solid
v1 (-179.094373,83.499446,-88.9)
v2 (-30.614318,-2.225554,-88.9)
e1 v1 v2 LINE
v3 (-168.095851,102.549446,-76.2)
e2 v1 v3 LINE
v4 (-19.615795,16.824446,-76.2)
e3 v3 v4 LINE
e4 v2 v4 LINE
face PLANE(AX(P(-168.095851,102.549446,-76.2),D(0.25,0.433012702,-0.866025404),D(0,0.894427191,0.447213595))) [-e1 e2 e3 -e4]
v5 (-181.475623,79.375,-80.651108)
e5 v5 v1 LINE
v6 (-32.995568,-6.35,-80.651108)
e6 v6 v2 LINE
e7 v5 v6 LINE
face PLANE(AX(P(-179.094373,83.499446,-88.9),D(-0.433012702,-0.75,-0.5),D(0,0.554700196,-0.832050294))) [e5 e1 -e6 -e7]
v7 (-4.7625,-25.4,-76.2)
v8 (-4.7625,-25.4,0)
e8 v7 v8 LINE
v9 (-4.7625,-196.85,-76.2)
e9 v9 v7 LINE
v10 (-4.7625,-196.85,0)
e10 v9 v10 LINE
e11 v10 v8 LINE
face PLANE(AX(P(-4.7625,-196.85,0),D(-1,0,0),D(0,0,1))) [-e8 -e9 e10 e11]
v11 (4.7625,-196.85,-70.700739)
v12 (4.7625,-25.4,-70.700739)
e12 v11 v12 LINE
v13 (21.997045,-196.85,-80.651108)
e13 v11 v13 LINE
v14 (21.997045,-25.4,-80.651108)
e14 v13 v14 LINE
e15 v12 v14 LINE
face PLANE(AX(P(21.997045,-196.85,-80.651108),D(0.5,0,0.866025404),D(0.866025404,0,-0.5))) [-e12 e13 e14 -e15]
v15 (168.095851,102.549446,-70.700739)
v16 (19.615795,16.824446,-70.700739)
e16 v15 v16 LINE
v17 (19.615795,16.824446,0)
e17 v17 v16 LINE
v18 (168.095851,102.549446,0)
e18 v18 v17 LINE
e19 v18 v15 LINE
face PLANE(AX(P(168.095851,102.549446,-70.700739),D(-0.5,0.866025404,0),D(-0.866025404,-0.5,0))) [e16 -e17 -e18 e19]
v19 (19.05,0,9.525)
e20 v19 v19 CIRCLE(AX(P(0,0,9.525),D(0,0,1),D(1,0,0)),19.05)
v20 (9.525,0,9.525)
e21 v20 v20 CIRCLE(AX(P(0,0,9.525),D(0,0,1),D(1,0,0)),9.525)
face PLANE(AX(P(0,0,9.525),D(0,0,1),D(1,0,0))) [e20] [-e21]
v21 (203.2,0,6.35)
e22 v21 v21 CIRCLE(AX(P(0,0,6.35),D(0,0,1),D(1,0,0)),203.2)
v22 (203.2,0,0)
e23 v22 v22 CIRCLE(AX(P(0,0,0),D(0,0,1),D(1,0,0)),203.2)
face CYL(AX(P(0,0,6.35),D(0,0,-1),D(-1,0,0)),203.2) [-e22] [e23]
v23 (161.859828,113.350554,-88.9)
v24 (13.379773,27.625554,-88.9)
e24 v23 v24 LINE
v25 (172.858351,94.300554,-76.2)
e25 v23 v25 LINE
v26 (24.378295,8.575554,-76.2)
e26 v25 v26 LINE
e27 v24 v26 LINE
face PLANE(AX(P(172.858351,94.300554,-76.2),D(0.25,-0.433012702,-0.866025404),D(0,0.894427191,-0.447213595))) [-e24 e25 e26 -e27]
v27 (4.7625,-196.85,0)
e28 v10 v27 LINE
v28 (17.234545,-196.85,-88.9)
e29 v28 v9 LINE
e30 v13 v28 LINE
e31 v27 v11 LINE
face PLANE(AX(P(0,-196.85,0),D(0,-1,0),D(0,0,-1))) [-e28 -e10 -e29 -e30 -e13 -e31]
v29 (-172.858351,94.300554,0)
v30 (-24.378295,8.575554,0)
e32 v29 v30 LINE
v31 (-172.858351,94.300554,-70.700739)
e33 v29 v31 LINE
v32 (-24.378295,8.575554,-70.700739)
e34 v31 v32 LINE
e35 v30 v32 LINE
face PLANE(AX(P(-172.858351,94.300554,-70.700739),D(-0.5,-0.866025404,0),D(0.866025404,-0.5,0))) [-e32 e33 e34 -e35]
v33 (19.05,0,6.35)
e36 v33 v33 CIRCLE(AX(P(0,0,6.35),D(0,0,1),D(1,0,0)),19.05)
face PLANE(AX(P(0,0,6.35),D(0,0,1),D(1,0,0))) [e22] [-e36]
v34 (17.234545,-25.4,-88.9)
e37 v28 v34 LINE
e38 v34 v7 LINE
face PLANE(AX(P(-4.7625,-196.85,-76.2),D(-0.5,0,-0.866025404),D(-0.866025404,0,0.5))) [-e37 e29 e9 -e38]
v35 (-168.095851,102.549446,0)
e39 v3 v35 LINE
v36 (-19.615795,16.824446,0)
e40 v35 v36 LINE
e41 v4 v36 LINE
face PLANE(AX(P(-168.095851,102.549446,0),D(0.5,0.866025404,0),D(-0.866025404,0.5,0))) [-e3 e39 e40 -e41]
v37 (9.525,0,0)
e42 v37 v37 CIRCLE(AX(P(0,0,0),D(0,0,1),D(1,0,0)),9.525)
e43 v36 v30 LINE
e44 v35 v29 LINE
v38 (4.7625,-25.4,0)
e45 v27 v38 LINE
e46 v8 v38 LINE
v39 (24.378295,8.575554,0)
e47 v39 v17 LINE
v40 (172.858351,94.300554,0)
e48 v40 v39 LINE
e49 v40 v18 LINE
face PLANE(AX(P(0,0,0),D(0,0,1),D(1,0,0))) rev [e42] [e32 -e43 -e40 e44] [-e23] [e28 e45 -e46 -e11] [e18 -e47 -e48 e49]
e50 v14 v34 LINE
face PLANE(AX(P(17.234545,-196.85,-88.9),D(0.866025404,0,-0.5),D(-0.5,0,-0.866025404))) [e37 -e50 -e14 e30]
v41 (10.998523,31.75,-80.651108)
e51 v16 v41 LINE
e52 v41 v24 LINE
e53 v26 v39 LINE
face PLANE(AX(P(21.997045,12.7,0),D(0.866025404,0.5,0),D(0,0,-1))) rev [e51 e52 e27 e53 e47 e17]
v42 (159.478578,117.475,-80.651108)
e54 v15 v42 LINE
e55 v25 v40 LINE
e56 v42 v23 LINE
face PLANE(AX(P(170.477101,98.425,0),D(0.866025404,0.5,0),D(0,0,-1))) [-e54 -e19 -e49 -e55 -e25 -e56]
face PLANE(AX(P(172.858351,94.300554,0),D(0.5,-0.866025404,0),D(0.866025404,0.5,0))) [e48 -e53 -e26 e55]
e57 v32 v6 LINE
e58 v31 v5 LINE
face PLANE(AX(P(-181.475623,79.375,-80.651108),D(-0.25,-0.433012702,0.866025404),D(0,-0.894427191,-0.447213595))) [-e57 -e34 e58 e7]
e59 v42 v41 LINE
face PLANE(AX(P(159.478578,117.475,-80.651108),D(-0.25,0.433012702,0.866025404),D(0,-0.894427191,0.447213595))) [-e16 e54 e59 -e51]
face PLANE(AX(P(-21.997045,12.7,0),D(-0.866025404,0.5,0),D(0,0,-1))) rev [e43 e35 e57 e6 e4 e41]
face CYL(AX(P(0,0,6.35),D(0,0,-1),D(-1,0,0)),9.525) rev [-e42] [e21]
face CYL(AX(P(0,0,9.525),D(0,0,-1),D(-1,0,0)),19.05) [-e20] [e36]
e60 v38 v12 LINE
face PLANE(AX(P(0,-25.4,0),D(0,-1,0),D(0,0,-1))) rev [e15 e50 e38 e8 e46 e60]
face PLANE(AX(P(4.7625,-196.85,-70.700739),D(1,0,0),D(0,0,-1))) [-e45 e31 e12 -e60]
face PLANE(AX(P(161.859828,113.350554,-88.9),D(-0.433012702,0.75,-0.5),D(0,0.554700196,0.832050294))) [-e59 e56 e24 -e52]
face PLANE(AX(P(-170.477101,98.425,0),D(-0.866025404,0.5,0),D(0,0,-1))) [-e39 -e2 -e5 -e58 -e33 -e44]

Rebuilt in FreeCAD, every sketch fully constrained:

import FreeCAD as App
import Part
import Sketcher
from FreeCAD import Vector
Q = App.Units.Quantity


def add_polygon(sketch, points):
    """Adds a closed chain of lines whose ends are joined by coincident constraints."""
    first, n = sketch.GeometryCount, len(points)
    for a, b in zip(points, points[1:] + points[:1]):
        sketch.addGeometry(Part.LineSegment(App.Vector(*a, 0), App.Vector(*b, 0)), False)
    for i in range(n):
        sketch.addConstraint(Sketcher.Constraint("Coincident", first + i, 2, first + (i + 1) % n, 1))

doc = App.newDocument("Part")
params = doc.addObject("Spreadsheet::Sheet", "Params")
for row, (alias, value) in enumerate([
    ("sketch1_diameter", "16 in"),
    ("sketch1_diameter2", "0.75 in"),
    ("pad1_length", "0.25 in"),
    ("sketch2_height", "3 in"),
    ("sketch2_length", "1 in"),
    ("sketch2_width", "0.375 in"),
    ("sketch2_length2", "0.375 in"),
    ("pad2_length", "6.75 in"),
    ("sketch3_diameter", "1.5 in"),
    ("sketch3_diameter2", "0.75 in"),
    ("pad3_length", "0.125 in"),
], start=1):
    params.set(f"A{row}", alias)
    params.set(f"B{row}", "=" + value)
    params.setAlias(f"B{row}", alias)

body = doc.addObject("PartDesign::Body", "Body")

sketch1 = doc.addObject("Sketcher::SketchObject", "Sketch")
body.addObject(sketch1)
sketch1.AttachmentSupport = (doc.XY_Plane, [""])
sketch1.MapMode = "FlatFace"
sketch1.addGeometry([
    Part.Circle(Vector(0, 0, 0), Vector(0, 0, 1), 203.2),
    Part.Circle(Vector(0, 0, 0), Vector(0, 0, 1), 9.525),
], False)
sketch1.addConstraint([
    Sketcher.Constraint("Coincident", 0, 3, -1, 1),
    Sketcher.Constraint("Coincident", 1, 3, -1, 1),
    Sketcher.Constraint("Diameter", 0, Q("16 in")),
    Sketcher.Constraint("Diameter", 1, Q("0.75 in")),
])
sketch1.setExpression("Constraints[2]", "Params.sketch1_diameter")
sketch1.setExpression("Constraints[3]", "Params.sketch1_diameter2")
pad1 = doc.addObject("PartDesign::Pad", "Pad")
body.addObject(pad1)
pad1.Profile = sketch1
pad1.setExpression("Length", "Params.pad1_length")

sketch2 = doc.addObject("Sketcher::SketchObject", "Sketch001")
body.addObject(sketch2)
sketch2.AttachmentSupport = (doc.XZ_Plane, [""])
sketch2.MapMode = "FlatFace"
sketch2.AttachmentOffset = App.Placement(Vector(0, 0, 1 * 25.4), App.Rotation())
add_polygon(sketch2, [(-4.7625, -76.2), (-4.7625, 0), (4.7625, 0), (4.7625, -70.700739), (21.997045, -80.651108), (17.234545, -88.9)])
sketch2.addConstraint([
    Sketcher.Constraint("Vertical", 0),
    Sketcher.Constraint("Horizontal", 1),
    Sketcher.Constraint("Vertical", 2),
    Sketcher.Constraint("Symmetric", 0, 2, 1, 2, -1, 1),
    Sketcher.Constraint("Perpendicular", 3, 4),
    Sketcher.Constraint("Perpendicular", 4, 5),
    Sketcher.Constraint("DistanceY", 0, 1, 0, 2, Q("3 in")),
    Sketcher.Constraint("Distance", 5, Q("1 in")),
    Sketcher.Constraint("Angle", 3, Q("-30 deg")),
    Sketcher.Constraint("DistanceX", 1, 1, 1, 2, Q("0.375 in")),
    Sketcher.Constraint("Distance", 4, Q("0.375 in")),
])
sketch2.setExpression("Constraints[12]", "Params.sketch2_height")
sketch2.setExpression("Constraints[13]", "Params.sketch2_length")
sketch2.setExpression("Constraints[15]", "Params.sketch2_width")
sketch2.setExpression("Constraints[16]", "Params.sketch2_length2")
pad2 = doc.addObject("PartDesign::Pad", "Pad001")
body.addObject(pad2)
pad2.Profile = sketch2
pad2.setExpression("Length", "Params.pad2_length")
doc.recompute()

polarpattern = doc.addObject("PartDesign::PolarPattern", "PolarPattern")
body.addObject(polarpattern)
polarpattern.Originals = [pad2]
polarpattern.Axis = (doc.Z_Axis, [""])
polarpattern.Angle = 360
polarpattern.Occurrences = 3
body.Tip = polarpattern

sketch3 = doc.addObject("Sketcher::SketchObject", "Sketch002")
body.addObject(sketch3)
sketch3.AttachmentSupport = (doc.XY_Plane, [""])
sketch3.MapMode = "FlatFace"
sketch3.AttachmentOffset = App.Placement(Vector(0, 0, 0.25 * 25.4), App.Rotation())
sketch3.addGeometry([
    Part.Circle(Vector(0, 0, 0), Vector(0, 0, 1), 19.05),
    Part.Circle(Vector(0, 0, 0), Vector(0, 0, 1), 9.525),
], False)
sketch3.addConstraint([
    Sketcher.Constraint("Coincident", 0, 3, -1, 1),
    Sketcher.Constraint("Coincident", 1, 3, -1, 1),
    Sketcher.Constraint("Diameter", 0, Q("1.5 in")),
    Sketcher.Constraint("Diameter", 1, Q("0.75 in")),
])
sketch3.setExpression("Constraints[2]", "Params.sketch3_diameter")
sketch3.setExpression("Constraints[3]", "Params.sketch3_diameter2")
pad3 = doc.addObject("PartDesign::Pad", "Pad002")
body.addObject(pad3)
pad3.Profile = sketch3
pad3.setExpression("Length", "Params.pad3_length")

doc.recompute()
